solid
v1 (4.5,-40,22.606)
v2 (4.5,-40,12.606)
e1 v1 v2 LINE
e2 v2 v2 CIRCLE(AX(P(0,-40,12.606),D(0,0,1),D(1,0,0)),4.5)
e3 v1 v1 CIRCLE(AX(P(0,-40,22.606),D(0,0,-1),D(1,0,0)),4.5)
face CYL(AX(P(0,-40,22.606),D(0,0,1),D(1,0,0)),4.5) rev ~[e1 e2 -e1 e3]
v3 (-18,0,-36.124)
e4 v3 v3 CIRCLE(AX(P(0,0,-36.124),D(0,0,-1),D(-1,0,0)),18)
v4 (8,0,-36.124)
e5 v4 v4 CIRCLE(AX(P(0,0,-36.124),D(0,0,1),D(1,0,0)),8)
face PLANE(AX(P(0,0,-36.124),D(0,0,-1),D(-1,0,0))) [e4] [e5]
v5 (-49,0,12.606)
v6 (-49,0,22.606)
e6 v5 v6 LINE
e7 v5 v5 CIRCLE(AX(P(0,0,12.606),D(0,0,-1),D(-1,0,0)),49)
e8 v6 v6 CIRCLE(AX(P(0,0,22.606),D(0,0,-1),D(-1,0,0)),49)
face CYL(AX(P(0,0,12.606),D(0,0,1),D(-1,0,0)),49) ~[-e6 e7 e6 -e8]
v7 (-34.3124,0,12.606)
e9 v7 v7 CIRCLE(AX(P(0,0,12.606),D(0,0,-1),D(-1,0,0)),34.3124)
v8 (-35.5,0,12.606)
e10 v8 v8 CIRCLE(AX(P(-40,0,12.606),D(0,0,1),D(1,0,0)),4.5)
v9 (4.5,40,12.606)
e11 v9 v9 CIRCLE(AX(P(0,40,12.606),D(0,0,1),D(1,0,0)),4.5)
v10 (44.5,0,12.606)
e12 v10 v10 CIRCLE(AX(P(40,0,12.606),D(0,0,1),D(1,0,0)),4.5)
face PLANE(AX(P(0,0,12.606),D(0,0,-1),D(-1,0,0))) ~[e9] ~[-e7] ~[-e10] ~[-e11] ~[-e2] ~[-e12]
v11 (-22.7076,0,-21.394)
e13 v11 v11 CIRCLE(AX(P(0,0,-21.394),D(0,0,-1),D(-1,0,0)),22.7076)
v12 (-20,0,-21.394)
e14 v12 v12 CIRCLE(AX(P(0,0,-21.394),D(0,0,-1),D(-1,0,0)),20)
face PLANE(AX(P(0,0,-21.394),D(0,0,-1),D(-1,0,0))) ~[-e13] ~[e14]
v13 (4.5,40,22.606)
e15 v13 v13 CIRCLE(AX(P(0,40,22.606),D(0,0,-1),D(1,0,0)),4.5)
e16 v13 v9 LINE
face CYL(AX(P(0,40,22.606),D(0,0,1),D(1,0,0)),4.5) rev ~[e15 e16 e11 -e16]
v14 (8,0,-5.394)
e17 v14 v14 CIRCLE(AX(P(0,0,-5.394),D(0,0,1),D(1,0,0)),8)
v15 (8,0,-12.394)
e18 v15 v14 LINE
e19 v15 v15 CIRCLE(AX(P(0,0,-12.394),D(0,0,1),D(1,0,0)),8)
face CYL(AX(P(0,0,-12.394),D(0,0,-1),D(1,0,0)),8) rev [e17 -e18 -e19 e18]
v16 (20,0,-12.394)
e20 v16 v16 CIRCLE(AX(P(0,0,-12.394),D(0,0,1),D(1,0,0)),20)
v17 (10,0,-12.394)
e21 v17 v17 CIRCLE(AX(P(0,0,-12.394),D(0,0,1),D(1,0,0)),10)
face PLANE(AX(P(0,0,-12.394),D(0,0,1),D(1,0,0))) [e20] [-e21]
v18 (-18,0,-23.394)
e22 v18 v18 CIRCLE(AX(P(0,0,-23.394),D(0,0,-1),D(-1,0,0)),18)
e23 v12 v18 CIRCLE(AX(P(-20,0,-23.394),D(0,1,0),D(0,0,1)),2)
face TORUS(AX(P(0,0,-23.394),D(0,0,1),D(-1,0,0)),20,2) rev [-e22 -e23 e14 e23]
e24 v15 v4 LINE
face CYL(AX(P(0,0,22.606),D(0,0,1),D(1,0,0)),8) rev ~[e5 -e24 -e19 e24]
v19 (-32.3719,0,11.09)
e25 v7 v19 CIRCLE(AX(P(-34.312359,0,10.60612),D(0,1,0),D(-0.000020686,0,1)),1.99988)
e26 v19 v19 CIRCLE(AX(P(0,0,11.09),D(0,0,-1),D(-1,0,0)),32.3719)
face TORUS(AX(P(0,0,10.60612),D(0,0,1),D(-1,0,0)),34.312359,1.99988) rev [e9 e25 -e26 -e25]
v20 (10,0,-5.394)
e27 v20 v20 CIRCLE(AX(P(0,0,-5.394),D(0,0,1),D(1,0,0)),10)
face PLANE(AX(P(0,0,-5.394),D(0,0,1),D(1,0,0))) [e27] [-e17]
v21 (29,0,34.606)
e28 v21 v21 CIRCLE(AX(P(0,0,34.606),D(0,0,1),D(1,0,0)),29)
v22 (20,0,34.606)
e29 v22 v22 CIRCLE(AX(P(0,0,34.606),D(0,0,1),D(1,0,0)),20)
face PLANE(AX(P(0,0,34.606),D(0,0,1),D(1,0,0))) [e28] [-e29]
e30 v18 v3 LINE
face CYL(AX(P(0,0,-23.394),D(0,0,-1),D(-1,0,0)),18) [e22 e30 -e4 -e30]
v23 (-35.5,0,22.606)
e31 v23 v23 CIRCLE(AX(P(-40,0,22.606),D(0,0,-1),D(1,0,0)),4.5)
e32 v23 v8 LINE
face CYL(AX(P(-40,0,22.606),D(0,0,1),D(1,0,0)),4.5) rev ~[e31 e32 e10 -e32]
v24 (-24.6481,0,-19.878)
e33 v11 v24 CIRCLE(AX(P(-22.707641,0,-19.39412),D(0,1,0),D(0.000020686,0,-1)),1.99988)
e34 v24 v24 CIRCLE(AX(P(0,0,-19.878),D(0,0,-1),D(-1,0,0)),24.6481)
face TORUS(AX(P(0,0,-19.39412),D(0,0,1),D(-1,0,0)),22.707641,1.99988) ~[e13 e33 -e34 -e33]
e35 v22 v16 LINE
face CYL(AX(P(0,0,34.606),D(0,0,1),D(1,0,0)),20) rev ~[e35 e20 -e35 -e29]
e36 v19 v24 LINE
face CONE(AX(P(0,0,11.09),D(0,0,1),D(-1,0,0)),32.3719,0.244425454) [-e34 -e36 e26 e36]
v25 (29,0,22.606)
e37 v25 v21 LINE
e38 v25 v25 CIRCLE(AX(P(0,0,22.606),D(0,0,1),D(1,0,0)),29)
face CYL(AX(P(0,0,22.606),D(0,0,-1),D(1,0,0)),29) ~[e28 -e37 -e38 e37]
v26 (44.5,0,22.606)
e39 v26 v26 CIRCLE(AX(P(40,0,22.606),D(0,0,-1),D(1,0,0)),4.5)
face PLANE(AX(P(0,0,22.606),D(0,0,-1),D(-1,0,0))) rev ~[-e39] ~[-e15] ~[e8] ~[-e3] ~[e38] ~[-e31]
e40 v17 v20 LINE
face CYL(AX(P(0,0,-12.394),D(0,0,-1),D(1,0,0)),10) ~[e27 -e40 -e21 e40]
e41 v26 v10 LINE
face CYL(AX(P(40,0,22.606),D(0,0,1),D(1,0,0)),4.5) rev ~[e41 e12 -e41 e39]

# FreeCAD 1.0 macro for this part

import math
import FreeCAD as App
import Part
import Sketcher
from FreeCAD import Vector

doc = App.newDocument("Part")
body = doc.addObject("PartDesign::Body", "Body")

# Sketch on XZ plane
sketch1 = body.newObject("Sketcher::SketchObject", "Sketch")
sketch1.AttachmentSupport = (doc.getObject("XZ_Plane"), [""])
sketch1.MapMode = "FlatFace"
sketch1.addGeometry(Part.ArcOfCircle(Part.Circle(Vector(-34.3124, 10.606, 0), Vector(0, 0, 1), 2), math.radians(14.004976), math.radians(90)), False)
sketch1.addGeometry(Part.LineSegment(Vector(-34.3124, 12.606, 0), Vector(-49, 12.606, 0)), False)
sketch1.addGeometry(Part.LineSegment(Vector(-49, 12.606, 0), Vector(-49, 22.606, 0)), False)
sketch1.addGeometry(Part.LineSegment(Vector(-49, 22.606, 0), Vector(0, 22.606, 0)), False)
sketch1.addGeometry(Part.LineSegment(Vector(0, 22.606, 0), Vector(0, -36.124, 0)), False)
sketch1.addGeometry(Part.LineSegment(Vector(0, -36.124, 0), Vector(-18, -36.124, 0)), False)
sketch1.addGeometry(Part.LineSegment(Vector(-18, -36.124, 0), Vector(-18, -23.394, 0)), False)
sketch1.addGeometry(Part.ArcOfCircle(Part.Circle(Vector(-20, -23.394, 0), Vector(0, 0, 1), 2), math.radians(0), math.radians(90)), False)
sketch1.addGeometry(Part.LineSegment(Vector(-20, -21.394, 0), Vector(-22.7076, -21.394, 0)), False)
sketch1.addGeometry(Part.ArcOfCircle(Part.Circle(Vector(-22.7076, -19.394, 0), Vector(0, 0, 1), 2), math.radians(-165.995024), math.radians(-90)), False)
sketch1.addGeometry(Part.LineSegment(Vector(-24.6481, -19.878, 0), Vector(-32.3719, 11.09, 0)), False)
sketch1.addConstraint(Sketcher.Constraint("Tangent", 0, 2, 1, 1))
sketch1.addConstraint(Sketcher.Constraint("Coincident", 1, 2, 2, 1))
sketch1.addConstraint(Sketcher.Constraint("Coincident", 2, 2, 3, 1))
sketch1.addConstraint(Sketcher.Constraint("Coincident", 3, 2, 4, 1))
sketch1.addConstraint(Sketcher.Constraint("Coincident", 4, 2, 5, 1))
sketch1.addConstraint(Sketcher.Constraint("Coincident", 5, 2, 6, 1))
sketch1.addConstraint(Sketcher.Constraint("Tangent", 6, 2, 7, 1))
sketch1.addConstraint(Sketcher.Constraint("Tangent", 7, 2, 8, 1))
sketch1.addConstraint(Sketcher.Constraint("Tangent", 8, 2, 9, 2))
sketch1.addConstraint(Sketcher.Constraint("Tangent", 9, 1, 10, 1))
sketch1.addConstraint(Sketcher.Constraint("Tangent", 10, 2, 0, 1))
sketch1.addConstraint(Sketcher.Constraint("Horizontal", 1))
sketch1.addConstraint(Sketcher.Constraint("Vertical", 2))
sketch1.addConstraint(Sketcher.Constraint("Horizontal", 3))
sketch1.addConstraint(Sketcher.Constraint("Vertical", 4))
sketch1.addConstraint(Sketcher.Constraint("Horizontal", 5))
sketch1.addConstraint(Sketcher.Constraint("Vertical", 6))
sketch1.addConstraint(Sketcher.Constraint("Horizontal", 8))
sketch1.addConstraint(Sketcher.Constraint("Equal", 0, 7))
sketch1.addConstraint(Sketcher.Constraint("Equal", 7, 9))
sketch1.addConstraint(Sketcher.Constraint("PointOnObject", 3, 2, -2))
sketch1.addConstraint(Sketcher.Constraint("Radius", 0, 2.0))
sketch1.addConstraint(Sketcher.Constraint("DistanceX", 3, 1, 3, 2, 49.0))
sketch1.addConstraint(Sketcher.Constraint("DistanceX", 5, 2, 5, 1, 18.0))
sketch1.addConstraint(Sketcher.Constraint("DistanceY", 2, 1, 2, 2, 10.0))
sketch1.addConstraint(Sketcher.Constraint("DistanceY", 7, 3, 0, 3, 34.0))
sketch1.addConstraint(Sketcher.Constraint("DistanceY", 5, 2, 7, 2, 14.73))
sketch1.addConstraint(Sketcher.Constraint("DistanceY", -1, 1, 10, 2, 11.09))
sketch1.addConstraint(Sketcher.Constraint("DistanceX", 1, 2, 1, 1, 14.6876))
sketch1.addConstraint(Sketcher.Constraint("DistanceX", 8, 2, 8, 1, 2.7076))
revolution = body.newObject("PartDesign::Revolution", "Revolution")
revolution.Profile = sketch1
revolution.ReferenceAxis = (sketch1, ["V_Axis"])
revolution.Angle = 360

# Sketch on XY plane
sketch2 = body.newObject("Sketcher::SketchObject", "Sketch001")
sketch2.AttachmentSupport = (doc.getObject("XY_Plane"), [""])
sketch2.MapMode = "FlatFace"
sketch2.AttachmentOffset = App.Placement(Vector(0, 0, 22.606), App.Rotation())
sketch2.addGeometry(Part.Circle(Vector(40, 0, 0), Vector(0, 0, 1), 4.5), False)
sketch2.addGeometry(Part.Circle(Vector(0, 40, 0), Vector(0, 0, 1), 4.5), False)
sketch2.addGeometry(Part.Circle(Vector(0, -40, 0), Vector(0, 0, 1), 4.5), False)
sketch2.addGeometry(Part.Circle(Vector(-40, 0, 0), Vector(0, 0, 1), 4.5), False)
sketch2.addConstraint(Sketcher.Constraint("Equal", 0, 1))
sketch2.addConstraint(Sketcher.Constraint("Equal", 1, 2))
sketch2.addConstraint(Sketcher.Constraint("Equal", 2, 3))
sketch2.addConstraint(Sketcher.Constraint("Symmetric", 1, 3, 2, 3, -1, 1))
sketch2.addConstraint(Sketcher.Constraint("Symmetric", 0, 3, 3, 3, -1, 1))
sketch2.addConstraint(Sketcher.Constraint("PointOnObject", 0, 3, -1))
sketch2.addConstraint(Sketcher.Constraint("PointOnObject", 1, 3, -2))
sketch2.addConstraint(Sketcher.Constraint("Diameter", 0, 9.0))
sketch2.addConstraint(Sketcher.Constraint("DistanceY", 2, 3, 1, 3, 80.0))
sketch2.addConstraint(Sketcher.Constraint("DistanceX", 3, 3, 0, 3, 80.0))
pocket1 = body.newObject("PartDesign::Pocket", "Pocket")
pocket1.Profile = sketch2
pocket1.Type = "ThroughAll"

# Sketch on XY plane
sketch3 = body.newObject("Sketcher::SketchObject", "Sketch002")
sketch3.AttachmentSupport = (doc.getObject("XY_Plane"), [""])
sketch3.MapMode = "FlatFace"
sketch3.AttachmentOffset = App.Placement(Vector(0, 0, 22.606), App.Rotation())
sketch3.addGeometry(Part.Circle(Vector(0, 0, 0), Vector(0, 0, 1), 8), False)
sketch3.addConstraint(Sketcher.Constraint("Coincident", 0, 3, -1, 1))
sketch3.addConstraint(Sketcher.Constraint("Diameter", 0, 16.0))
pocket2 = body.newObject("PartDesign::Pocket", "Pocket001")
pocket2.Profile = sketch3
pocket2.Length = 60

# Sketch on XY plane
sketch4 = body.newObject("Sketcher::SketchObject", "Sketch003")
sketch4.AttachmentSupport = (doc.getObject("XY_Plane"), [""])
sketch4.MapMode = "FlatFace"
sketch4.AttachmentOffset = App.Placement(Vector(0, 0, 22.606), App.Rotation())
sketch4.addGeometry(Part.Circle(Vector(0, 0, 0), Vector(0, 0, 1), 29), False)
sketch4.addConstraint(Sketcher.Constraint("Coincident", 0, 3, -1, 1))
sketch4.addConstraint(Sketcher.Constraint("Diameter", 0, 58.0))
pad1 = body.newObject("PartDesign::Pad", "Pad")
pad1.Profile = sketch4
pad1.Length = 12

# Sketch on XY plane
sketch5 = body.newObject("Sketcher::SketchObject", "Sketch004")
sketch5.AttachmentSupport = (doc.getObject("XY_Plane"), [""])
sketch5.MapMode = "FlatFace"
sketch5.AttachmentOffset = App.Placement(Vector(0, 0, 34.606), App.Rotation())
sketch5.addGeometry(Part.Circle(Vector(0, 0, 0), Vector(0, 0, 1), 20), False)
sketch5.addConstraint(Sketcher.Constraint("Coincident", 0, 3, -1, 1))
sketch5.addConstraint(Sketcher.Constraint("Diameter", 0, 40.0))
pocket3 = body.newObject("PartDesign::Pocket", "Pocket002")
pocket3.Profile = sketch5
pocket3.Length = 47

# Sketch on XY plane
sketch6 = body.newObject("Sketcher::SketchObject", "Sketch005")
sketch6.AttachmentSupport = (doc.getObject("XY_Plane"), [""])
sketch6.MapMode = "FlatFace"
sketch6.AttachmentOffset = App.Placement(Vector(0, 0, -12.394), App.Rotation())
sketch6.addGeometry(Part.Circle(Vector(0, 0, 0), Vector(0, 0, 1), 10), False)
sketch6.addGeometry(Part.Circle(Vector(0, 0, 0), Vector(0, 0, 1), 8), False)
sketch6.addConstraint(Sketcher.Constraint("Coincident", 0, 3, -1, 1))
sketch6.addConstraint(Sketcher.Constraint("Coincident", 1, 3, -1, 1))
sketch6.addConstraint(Sketcher.Constraint("Diameter", 0, 20.0))
sketch6.addConstraint(Sketcher.Constraint("Diameter", 1, 16.0))
pad2 = body.newObject("PartDesign::Pad", "Pad001")
pad2.Profile = sketch6
pad2.Length = 7

doc.recompute()
